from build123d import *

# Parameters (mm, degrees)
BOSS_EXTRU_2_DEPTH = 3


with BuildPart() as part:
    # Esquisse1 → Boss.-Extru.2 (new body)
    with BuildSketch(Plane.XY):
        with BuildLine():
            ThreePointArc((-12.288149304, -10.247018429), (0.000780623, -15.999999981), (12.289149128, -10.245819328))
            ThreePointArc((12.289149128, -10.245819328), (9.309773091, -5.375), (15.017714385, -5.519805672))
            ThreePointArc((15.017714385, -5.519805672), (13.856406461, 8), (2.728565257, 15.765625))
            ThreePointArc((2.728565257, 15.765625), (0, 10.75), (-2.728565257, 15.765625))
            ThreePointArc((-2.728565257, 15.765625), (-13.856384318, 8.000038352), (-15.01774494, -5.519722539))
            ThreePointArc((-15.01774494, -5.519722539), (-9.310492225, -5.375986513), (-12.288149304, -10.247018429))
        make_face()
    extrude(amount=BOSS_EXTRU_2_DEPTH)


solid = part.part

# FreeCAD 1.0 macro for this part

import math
import FreeCAD as App
import Part
import Sketcher
from FreeCAD import Vector
Q = App.Units.Quantity

doc = App.newDocument("Part")
body = doc.addObject("PartDesign::Body", "Body")

sketch1 = doc.addObject("Sketcher::SketchObject", "Sketch")
body.addObject(sketch1)
sketch1.AttachmentSupport = (doc.XY_Plane, [""])
sketch1.MapMode = "FlatFace"
sketch1.addGeometry(Part.ArcOfCircle(Part.Circle(Vector(0, 0, 0), Vector(0, 0, 1), 16), math.radians(-140.175464), math.radians(-39.818946)), False)
sketch1.addGeometry(Part.ArcOfCircle(Part.Circle(Vector(12.124356, -7, 0), Vector(0, 0, 1), 3.25), math.radians(27.093532), math.radians(272.906468)), False)
sketch1.addGeometry(Part.ArcOfCircle(Part.Circle(Vector(0, 0, 0), Vector(0, 0, 1), 16), math.radians(-20.181054), math.radians(80.181054)), False)
sketch1.addGeometry(Part.ArcOfCircle(Part.Circle(Vector(0, 14, 0), Vector(0, 0, 1), 3.25), math.radians(147.093532), math.radians(392.906468)), False)
sketch1.addGeometry(Part.ArcOfCircle(Part.Circle(Vector(0, 0, 0), Vector(0, 0, 1), 16), math.radians(99.818946), math.radians(200.180737)), False)
sketch1.addGeometry(Part.ArcOfCircle(Part.Circle(Vector(-12.125, -7.001116, 0), Vector(0, 0, 1), 3.25), math.radians(-92.877445), math.radians(152.882719)), False)
sketch1.addConstraint(Sketcher.Constraint("Coincident", 0, 2, 1, 2))
sketch1.addConstraint(Sketcher.Constraint("Coincident", 1, 1, 2, 1))
sketch1.addConstraint(Sketcher.Constraint("Coincident", 2, 2, 3, 2))
sketch1.addConstraint(Sketcher.Constraint("Coincident", 3, 1, 4, 1))
sketch1.addConstraint(Sketcher.Constraint("Coincident", 4, 2, 5, 2))
sketch1.addConstraint(Sketcher.Constraint("Coincident", 5, 1, 0, 1))
sketch1.addConstraint(Sketcher.Constraint("Coincident", 0, 3, -1, 1))
sketch1.addConstraint(Sketcher.Constraint("Coincident", 2, 3, -1, 1))
sketch1.addConstraint(Sketcher.Constraint("Coincident", 4, 3, -1, 1))
sketch1.addConstraint(Sketcher.Constraint("Equal", 0, 2))
sketch1.addConstraint(Sketcher.Constraint("Equal", 1, 3))
sketch1.addConstraint(Sketcher.Constraint("Equal", 2, 4))
sketch1.addConstraint(Sketcher.Constraint("Equal", 3, 5))
sketch1.addConstraint(Sketcher.Constraint("PointOnObject", 3, 3, -2))
sketch1.addConstraint(Sketcher.Constraint("Radius", 0, Q("16 mm")))
sketch1.addConstraint(Sketcher.Constraint("Radius", 1, Q("3.25 mm")))
sketch1.addConstraint(Sketcher.Constraint("DistanceY", 1, 3, -1, 1, Q("7 mm")))
sketch1.addConstraint(Sketcher.Constraint("DistanceY", -1, 1, 3, 3, Q("14 mm")))
sketch1.addConstraint(Sketcher.Constraint("DistanceX", 5, 3, -1, 1, Q("12.125 mm")))
sketch1.addConstraint(Sketcher.Constraint("DistanceX", -1, 1, 0, 2, Q("12.289149 mm")))
sketch1.addConstraint(Sketcher.Constraint("DistanceX", 5, 1, -1, 1, Q("12.288149 mm")))
pad1 = doc.addObject("PartDesign::Pad", "Pad")
body.addObject(pad1)
pad1.Profile = sketch1
pad1.Length = 3

doc.recompute()
